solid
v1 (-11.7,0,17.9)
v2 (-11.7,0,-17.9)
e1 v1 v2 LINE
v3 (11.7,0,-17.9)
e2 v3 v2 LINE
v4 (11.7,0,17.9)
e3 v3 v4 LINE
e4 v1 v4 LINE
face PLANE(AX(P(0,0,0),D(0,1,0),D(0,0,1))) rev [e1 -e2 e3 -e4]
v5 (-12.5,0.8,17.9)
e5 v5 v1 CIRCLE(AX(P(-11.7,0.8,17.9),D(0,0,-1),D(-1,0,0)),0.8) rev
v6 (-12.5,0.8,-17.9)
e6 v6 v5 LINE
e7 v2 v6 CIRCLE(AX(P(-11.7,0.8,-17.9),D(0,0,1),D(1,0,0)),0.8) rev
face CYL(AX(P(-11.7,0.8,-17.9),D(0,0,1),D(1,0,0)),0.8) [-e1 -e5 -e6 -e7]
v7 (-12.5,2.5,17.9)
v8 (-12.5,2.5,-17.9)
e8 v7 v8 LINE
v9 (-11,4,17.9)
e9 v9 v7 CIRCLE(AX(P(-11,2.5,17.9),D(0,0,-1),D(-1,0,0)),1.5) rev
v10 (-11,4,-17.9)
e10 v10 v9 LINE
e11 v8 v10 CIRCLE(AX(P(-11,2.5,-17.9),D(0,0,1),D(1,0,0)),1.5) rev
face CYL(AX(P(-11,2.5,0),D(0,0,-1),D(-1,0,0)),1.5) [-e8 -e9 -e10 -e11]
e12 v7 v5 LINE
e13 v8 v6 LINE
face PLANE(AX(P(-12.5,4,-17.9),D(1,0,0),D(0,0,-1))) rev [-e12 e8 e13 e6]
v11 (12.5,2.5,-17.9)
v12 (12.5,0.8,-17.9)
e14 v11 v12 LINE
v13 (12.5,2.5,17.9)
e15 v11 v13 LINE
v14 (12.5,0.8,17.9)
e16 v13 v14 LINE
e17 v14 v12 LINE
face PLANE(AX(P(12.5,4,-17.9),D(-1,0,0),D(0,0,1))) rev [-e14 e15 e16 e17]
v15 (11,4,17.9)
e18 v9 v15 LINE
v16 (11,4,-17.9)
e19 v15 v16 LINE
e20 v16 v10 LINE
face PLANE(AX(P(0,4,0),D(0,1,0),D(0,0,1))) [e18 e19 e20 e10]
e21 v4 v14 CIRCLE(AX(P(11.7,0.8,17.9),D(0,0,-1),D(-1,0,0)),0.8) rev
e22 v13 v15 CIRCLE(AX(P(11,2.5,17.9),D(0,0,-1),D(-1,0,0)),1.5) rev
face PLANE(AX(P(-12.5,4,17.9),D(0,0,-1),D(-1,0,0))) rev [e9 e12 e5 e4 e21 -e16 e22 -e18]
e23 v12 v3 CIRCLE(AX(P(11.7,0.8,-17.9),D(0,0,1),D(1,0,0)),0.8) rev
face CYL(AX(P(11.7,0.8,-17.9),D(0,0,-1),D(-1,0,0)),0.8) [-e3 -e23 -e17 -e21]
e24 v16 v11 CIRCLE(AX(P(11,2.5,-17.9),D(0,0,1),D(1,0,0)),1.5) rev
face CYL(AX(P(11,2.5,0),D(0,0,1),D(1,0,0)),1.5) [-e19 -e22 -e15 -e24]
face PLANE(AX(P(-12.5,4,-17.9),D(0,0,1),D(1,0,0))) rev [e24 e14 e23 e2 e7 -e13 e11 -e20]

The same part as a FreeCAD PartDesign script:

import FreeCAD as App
import Part
import Sketcher


def edges_at(feature, points):
    """Names of the edges that pass closest to the given points."""
    edges = feature.Shape.Edges
    near = lambda p: min(range(len(edges)), key=lambda i: edges[i].distToShape(Part.Vertex(*p))[0])
    return sorted({f"Edge{near(p) + 1}" for p in points})


def add_polygon(sketch, points):
    """Adds a closed chain of lines whose ends are joined by coincident constraints."""
    first, n = sketch.GeometryCount, len(points)
    for a, b in zip(points, points[1:] + points[:1]):
        sketch.addGeometry(Part.LineSegment(App.Vector(*a, 0), App.Vector(*b, 0)), False)
    for i in range(n):
        sketch.addConstraint(Sketcher.Constraint("Coincident", first + i, 2, first + (i + 1) % n, 1))

doc = App.newDocument("Part")
params = doc.addObject("Spreadsheet::Sheet", "Params")
for row, (alias, value) in enumerate([
    ("sketch1_width", "25 mm"),
    ("sketch1_height", "35.8 mm"),
    ("pad1_length", "4 mm"),
    ("fillet_radius", "1.5 mm"),
    ("fillet2_radius", "0.8 mm"),
], start=1):
    params.set(f"A{row}", alias)
    params.set(f"B{row}", "=" + value)
    params.setAlias(f"B{row}", alias)

body = doc.addObject("PartDesign::Body", "Body")

# Sketch on XZ plane
sketch1 = doc.addObject("Sketcher::SketchObject", "Sketch")
body.addObject(sketch1)
sketch1.AttachmentSupport = (doc.XZ_Plane, [""])
sketch1.MapMode = "FlatFace"
add_polygon(sketch1, [(-12, -18), (-12, 18), (12, 18), (12, -18)])  # lines 0-3
sketch1.addConstraint([
    Sketcher.Constraint("Vertical", 0),
    Sketcher.Constraint("Horizontal", 1),
    Sketcher.Constraint("Vertical", 2),
    Sketcher.Constraint("Horizontal", 3),
    Sketcher.Constraint("Symmetric", 0, 2, 2, 2, -1, 1),
    Sketcher.Constraint("DistanceX", 1, 1, 1, 2, 25.0),
    Sketcher.Constraint("DistanceY", 0, 1, 0, 2, 35.8),
])
sketch1.setExpression("Constraints[9]", "Params.sketch1_width")
sketch1.setExpression("Constraints[10]", "Params.sketch1_height")
pad1 = doc.addObject("PartDesign::Pad", "Pad")
body.addObject(pad1)
pad1.Profile = sketch1
pad1.setExpression("Length", "Params.pad1_length")
pad1.Reversed = True
doc.recompute()

fillet = doc.addObject("PartDesign::Fillet", "Fillet")
body.addObject(fillet)
fillet.Base = (pad1, edges_at(pad1, [(-12.5, 4, 0), (12.5, 4, 0)]))
fillet.setExpression("Radius", "Params.fillet_radius")
doc.recompute()

fillet2 = doc.addObject("PartDesign::Fillet", "Fillet001")
body.addObject(fillet2)
fillet2.Base = (fillet, edges_at(fillet, [(-12.5, 0, 0), (12.5, 0, 0)]))
fillet2.setExpression("Radius", "Params.fillet2_radius")

doc.recompute()
